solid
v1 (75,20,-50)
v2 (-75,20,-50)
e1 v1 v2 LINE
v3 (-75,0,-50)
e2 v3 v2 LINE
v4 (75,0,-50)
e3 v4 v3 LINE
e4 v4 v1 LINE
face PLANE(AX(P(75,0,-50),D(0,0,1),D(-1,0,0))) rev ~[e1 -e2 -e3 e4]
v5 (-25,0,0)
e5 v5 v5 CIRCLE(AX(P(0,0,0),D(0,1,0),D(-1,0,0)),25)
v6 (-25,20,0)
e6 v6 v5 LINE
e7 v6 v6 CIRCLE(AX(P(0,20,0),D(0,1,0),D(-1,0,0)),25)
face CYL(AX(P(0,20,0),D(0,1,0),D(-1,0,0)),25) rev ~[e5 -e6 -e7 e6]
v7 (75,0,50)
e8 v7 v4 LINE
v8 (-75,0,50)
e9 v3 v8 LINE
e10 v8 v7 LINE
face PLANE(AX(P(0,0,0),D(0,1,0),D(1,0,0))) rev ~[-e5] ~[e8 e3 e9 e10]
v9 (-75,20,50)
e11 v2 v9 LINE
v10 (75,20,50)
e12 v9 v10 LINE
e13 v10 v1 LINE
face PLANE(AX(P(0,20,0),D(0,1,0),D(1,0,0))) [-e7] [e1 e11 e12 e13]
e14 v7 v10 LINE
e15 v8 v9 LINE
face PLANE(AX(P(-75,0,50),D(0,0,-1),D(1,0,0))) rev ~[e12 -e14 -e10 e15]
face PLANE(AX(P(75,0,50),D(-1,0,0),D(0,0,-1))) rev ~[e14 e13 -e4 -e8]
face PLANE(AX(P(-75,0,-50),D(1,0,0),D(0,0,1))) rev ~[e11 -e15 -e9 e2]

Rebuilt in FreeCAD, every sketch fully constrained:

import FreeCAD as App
import Part
import Sketcher

V = App.Vector
Q = App.Units.Quantity


def add_polygon(sketch, points):
    """Adds a closed chain of lines whose ends are joined by coincident constraints."""
    first, n = sketch.GeometryCount, len(points)
    for a, b in zip(points, points[1:] + points[:1]):
        sketch.addGeometry(Part.LineSegment(App.Vector(*a, 0), App.Vector(*b, 0)), False)
    for i in range(n):
        sketch.addConstraint(Sketcher.Constraint("Coincident", first + i, 2, first + (i + 1) % n, 1))

doc = App.newDocument("Part")
body = doc.addObject("PartDesign::Body", "Body")

# Sketch on XZ plane
sketch1 = body.newObject("Sketcher::SketchObject", "Sketch")
sketch1.AttachmentSupport = (doc.getObject("XZ_Plane"), [""])
sketch1.MapMode = "FlatFace"
add_polygon(sketch1, [(75, 50), (75, -50), (-75, -50), (-75, 50)])  # lines 0-3
sketch1.addConstraint(Sketcher.Constraint("Vertical", 0))
sketch1.addConstraint(Sketcher.Constraint("Horizontal", 1))
sketch1.addConstraint(Sketcher.Constraint("Vertical", 2))
sketch1.addConstraint(Sketcher.Constraint("Horizontal", 3))
sketch1.addConstraint(Sketcher.Constraint("Symmetric", 0, 2, 2, 2, -1, 1))
sketch1.addConstraint(Sketcher.Constraint("DistanceY", 0, 2, 0, 1, Q("3.937 in")))
sketch1.addConstraint(Sketcher.Constraint("DistanceX", 1, 2, 1, 1, Q("5.9055 in")))
pad1 = body.newObject("PartDesign::Pad", "Pad")
pad1.Profile = sketch1
pad1.Length = Q("0.7874016 in")
pad1.Reversed = True

# Sketch on XZ plane
sketch2 = body.newObject("Sketcher::SketchObject", "Sketch001")
sketch2.AttachmentSupport = (doc.getObject("XZ_Plane"), [""])
sketch2.MapMode = "FlatFace"
sketch2.AttachmentOffset = App.Placement(V(0, 0, -0.7874016 * 25.4), App.Rotation())
sketch2.addGeometry(Part.Circle(V(0, 0, 0), V(0, 0, 1), 25), False)
sketch2.addConstraint(Sketcher.Constraint("Coincident", 0, 3, -1, 1))
sketch2.addConstraint(Sketcher.Constraint("Diameter", 0, Q("1.9685 in")))
pocket1 = body.newObject("PartDesign::Pocket", "Pocket")
pocket1.Profile = sketch2
pocket1.Length = Q("0.7874016 in")
pocket1.Reversed = True

doc.recompute()
